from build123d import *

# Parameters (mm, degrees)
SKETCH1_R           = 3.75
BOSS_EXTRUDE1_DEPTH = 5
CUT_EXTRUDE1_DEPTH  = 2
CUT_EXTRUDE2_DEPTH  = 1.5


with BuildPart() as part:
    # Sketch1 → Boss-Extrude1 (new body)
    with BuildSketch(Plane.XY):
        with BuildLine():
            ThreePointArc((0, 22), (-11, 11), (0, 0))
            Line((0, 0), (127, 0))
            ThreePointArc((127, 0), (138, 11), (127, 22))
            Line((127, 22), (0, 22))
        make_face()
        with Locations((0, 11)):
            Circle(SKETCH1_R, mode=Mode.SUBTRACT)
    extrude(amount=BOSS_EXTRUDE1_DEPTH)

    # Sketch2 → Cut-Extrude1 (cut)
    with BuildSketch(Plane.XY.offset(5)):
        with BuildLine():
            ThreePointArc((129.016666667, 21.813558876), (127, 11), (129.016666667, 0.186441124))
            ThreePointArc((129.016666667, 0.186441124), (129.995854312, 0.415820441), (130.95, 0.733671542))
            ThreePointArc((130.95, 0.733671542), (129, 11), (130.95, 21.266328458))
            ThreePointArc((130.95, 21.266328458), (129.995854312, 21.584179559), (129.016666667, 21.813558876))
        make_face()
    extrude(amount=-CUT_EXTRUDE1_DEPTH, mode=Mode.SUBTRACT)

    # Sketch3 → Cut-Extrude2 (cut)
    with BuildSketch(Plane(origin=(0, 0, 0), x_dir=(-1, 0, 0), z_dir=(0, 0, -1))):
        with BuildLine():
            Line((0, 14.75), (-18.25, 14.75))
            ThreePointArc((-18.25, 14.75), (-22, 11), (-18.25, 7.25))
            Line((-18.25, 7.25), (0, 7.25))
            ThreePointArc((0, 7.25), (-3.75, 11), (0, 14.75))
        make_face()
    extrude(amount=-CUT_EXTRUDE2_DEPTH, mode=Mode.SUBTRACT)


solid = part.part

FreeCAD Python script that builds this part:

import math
import FreeCAD as App
import Part
import Sketcher
from FreeCAD import Vector
Q = App.Units.Quantity

doc = App.newDocument("Part")
body = doc.addObject("PartDesign::Body", "Body")

# Sketch on XY plane
sketch1 = body.newObject("Sketcher::SketchObject", "Sketch")
sketch1.AttachmentSupport = (doc.getObject("XY_Plane"), [""])
sketch1.MapMode = "FlatFace"
sketch1.addGeometry([
    Part.ArcOfCircle(Part.Circle(Vector(0, 11, 0), Vector(0, 0, 1), 11), math.radians(90), math.radians(270)),  # 0
    Part.LineSegment(Vector(0, 0, 0), Vector(127, 0, 0)),  # 1
    Part.ArcOfCircle(Part.Circle(Vector(127, 11, 0), Vector(0, 0, 1), 11), math.radians(-90), math.radians(90)),  # 2
    Part.LineSegment(Vector(127, 22, 0), Vector(0, 22, 0)),  # 3
    Part.Circle(Vector(0, 11, 0), Vector(0, 0, 1), 3.75),  # 4
], False)
sketch1.addConstraint([
    Sketcher.Constraint("Tangent", 0, 2, 1, 1),
    Sketcher.Constraint("Tangent", 1, 2, 2, 1),
    Sketcher.Constraint("Tangent", 2, 2, 3, 1),
    Sketcher.Constraint("Tangent", 3, 2, 0, 1),
    Sketcher.Constraint("Horizontal", 1),
    Sketcher.Constraint("Horizontal", 3),
    Sketcher.Constraint("Coincident", 0, 2, -1, 1),
    Sketcher.Constraint("Coincident", 4, 3, 0, 3),
    Sketcher.Constraint("Radius", 0, Q("11 mm")),
    Sketcher.Constraint("Diameter", 4, Q("7.5 mm")),
    Sketcher.Constraint("DistanceX", 1, 1, 1, 2, Q("127 mm")),
])
pad1 = body.newObject("PartDesign::Pad", "Pad")
pad1.Profile = sketch1
pad1.Length = 5

# Sketch on XY plane
sketch2 = body.newObject("Sketcher::SketchObject", "Sketch001")
sketch2.AttachmentSupport = (doc.getObject("XY_Plane"), [""])
sketch2.MapMode = "FlatFace"
sketch2.AttachmentOffset = App.Placement(Vector(0, 0, 5), App.Rotation())
sketch2.addGeometry([
    Part.ArcOfCircle(Part.Circle(Vector(157, 11, 0), Vector(0, 0, 1), 30), math.radians(158.872045), math.radians(201.127955)),
    Part.ArcOfCircle(Part.Circle(Vector(127, 11, 0), Vector(0, 0, 1), 11), math.radians(-79.436022), math.radians(-68.955624)),
    Part.ArcOfCircle(Part.Circle(Vector(157, 11, 0), Vector(0, 0, 1), 28), math.radians(158.490556), math.radians(201.509444)),
    Part.ArcOfCircle(Part.Circle(Vector(127, 11, 0), Vector(0, 0, 1), 11), math.radians(68.955624), math.radians(79.436022)),
], False)
sketch2.addConstraint([
    Sketcher.Constraint("Coincident", 0, 2, 1, 1),
    Sketcher.Constraint("Coincident", 1, 2, 2, 2),
    Sketcher.Constraint("Coincident", 2, 1, 3, 1),
    Sketcher.Constraint("Coincident", 3, 2, 0, 1),
    Sketcher.Constraint("Coincident", 2, 3, 0, 3),
    Sketcher.Constraint("Coincident", 3, 3, 1, 3),
    Sketcher.Constraint("Equal", 1, 3),
    Sketcher.Constraint("Horizontal", 0, 3, 1, 3),
    Sketcher.Constraint("Radius", 0, Q("30 mm")),
    Sketcher.Constraint("Radius", 1, Q("11 mm")),
    Sketcher.Constraint("Radius", 2, Q("28 mm")),
    Sketcher.Constraint("DistanceX", -1, 1, 0, 3, Q("157 mm")),
    Sketcher.Constraint("DistanceY", -1, 1, 0, 3, Q("11 mm")),
    Sketcher.Constraint("DistanceX", -1, 1, 1, 3, Q("127 mm")),
])
pocket1 = body.newObject("PartDesign::Pocket", "Pocket")
pocket1.Profile = sketch2
pocket1.Length = 2

# Sketch on XY plane
sketch3 = body.newObject("Sketcher::SketchObject", "Sketch002")
sketch3.AttachmentSupport = (doc.getObject("XY_Plane"), [""])
sketch3.MapMode = "FlatFace"
sketch3.addGeometry([
    Part.LineSegment(Vector(0, 14.75, 0), Vector(18.25, 14.75, 0)),
    Part.ArcOfCircle(Part.Circle(Vector(18.25, 11, 0), Vector(0, 0, 1), 3.75), math.radians(-90), math.radians(90)),
    Part.LineSegment(Vector(18.25, 7.25, 0), Vector(0, 7.25, 0)),
    Part.ArcOfCircle(Part.Circle(Vector(0, 11, 0), Vector(0, 0, 1), 3.75), math.radians(-90), math.radians(90)),
], False)
sketch3.addConstraint([
    Sketcher.Constraint("Tangent", 0, 2, 1, 2),
    Sketcher.Constraint("Tangent", 1, 1, 2, 1),
    Sketcher.Constraint("Tangent", 2, 2, 3, 1),
    Sketcher.Constraint("Tangent", 3, 2, 0, 1),
    Sketcher.Constraint("Horizontal", 0),
    Sketcher.Constraint("Horizontal", 2),
    Sketcher.Constraint("PointOnObject", 3, 3, -2),
    Sketcher.Constraint("Radius", 1, Q("3.75 mm")),
    Sketcher.Constraint("DistanceY", -1, 1, 1, 3, Q("11 mm")),
    Sketcher.Constraint("DistanceX", 0, 1, 0, 2, Q("18.25 mm")),
])
pocket2 = body.newObject("PartDesign::Pocket", "Pocket001")
pocket2.Profile = sketch3
pocket2.Length = 1.5
pocket2.Reversed = True

doc.recompute()
